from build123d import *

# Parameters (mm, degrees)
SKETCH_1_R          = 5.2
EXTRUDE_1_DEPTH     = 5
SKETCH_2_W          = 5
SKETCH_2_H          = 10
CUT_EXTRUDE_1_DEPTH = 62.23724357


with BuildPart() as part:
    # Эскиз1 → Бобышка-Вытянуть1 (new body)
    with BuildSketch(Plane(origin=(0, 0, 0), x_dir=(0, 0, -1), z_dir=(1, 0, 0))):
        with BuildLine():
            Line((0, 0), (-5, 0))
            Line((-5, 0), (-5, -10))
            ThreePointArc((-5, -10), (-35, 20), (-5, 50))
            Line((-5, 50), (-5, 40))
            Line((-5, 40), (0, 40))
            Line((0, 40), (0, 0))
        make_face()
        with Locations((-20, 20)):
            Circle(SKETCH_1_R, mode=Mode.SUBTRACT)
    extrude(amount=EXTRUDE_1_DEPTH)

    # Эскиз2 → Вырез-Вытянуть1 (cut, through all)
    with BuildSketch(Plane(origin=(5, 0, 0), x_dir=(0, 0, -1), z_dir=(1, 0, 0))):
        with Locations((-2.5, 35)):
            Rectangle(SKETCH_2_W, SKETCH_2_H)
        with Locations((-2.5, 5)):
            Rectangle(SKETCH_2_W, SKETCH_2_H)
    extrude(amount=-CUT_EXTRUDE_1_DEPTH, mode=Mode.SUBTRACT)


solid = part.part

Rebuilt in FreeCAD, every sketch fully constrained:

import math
import FreeCAD as App
import Part
import Sketcher

V = App.Vector
Q = App.Units.Quantity

doc = App.newDocument("Part")
body = doc.addObject("PartDesign::Body", "Body")

sketch1 = body.newObject("Sketcher::SketchObject", "Sketch")
sketch1.AttachmentSupport = (doc.getObject("YZ_Plane"), [""])
sketch1.MapMode = "FlatFace"
sketch1.addGeometry(Part.LineSegment(V(0, 5, 0), V(0, 0, 0)), False)
sketch1.addGeometry(Part.LineSegment(V(0, 0, 0), V(40, 0, 0)), False)
sketch1.addGeometry(Part.LineSegment(V(40, 0, 0), V(40, 5, 0)), False)
sketch1.addGeometry(Part.LineSegment(V(40, 5, 0), V(50, 5, 0)), False)
sketch1.addGeometry(Part.ArcOfCircle(Part.Circle(V(20, 5, 0), V(0, 0, 1), 30), math.radians(0), math.radians(180)), False)
sketch1.addGeometry(Part.LineSegment(V(-10, 5, 0), V(0, 5, 0)), False)
sketch1.addGeometry(Part.Circle(V(20, 20, 0), V(0, 0, 1), 5), False)
sketch1.addConstraint(Sketcher.Constraint("Coincident", 0, 2, 1, 1))
sketch1.addConstraint(Sketcher.Constraint("Coincident", 1, 2, 2, 1))
sketch1.addConstraint(Sketcher.Constraint("Coincident", 2, 2, 3, 1))
sketch1.addConstraint(Sketcher.Constraint("Coincident", 3, 2, 4, 1))
sketch1.addConstraint(Sketcher.Constraint("Coincident", 4, 2, 5, 1))
sketch1.addConstraint(Sketcher.Constraint("Coincident", 5, 2, 0, 1))
sketch1.addConstraint(Sketcher.Constraint("Vertical", 0))
sketch1.addConstraint(Sketcher.Constraint("Horizontal", 1))
sketch1.addConstraint(Sketcher.Constraint("Vertical", 2))
sketch1.addConstraint(Sketcher.Constraint("Horizontal", 3))
sketch1.addConstraint(Sketcher.Constraint("Horizontal", 5))
sketch1.addConstraint(Sketcher.Constraint("Coincident", 0, 2, -1, 1))
sketch1.addConstraint(Sketcher.Constraint("Horizontal", 4, 3, 2, 2))
sketch1.addConstraint(Sketcher.Constraint("Horizontal", 3, 2, 4, 2))
sketch1.addConstraint(Sketcher.Constraint("Vertical", 4, 3, 6, 3))
sketch1.addConstraint(Sketcher.Constraint("Equal", 3, 5))
sketch1.addConstraint(Sketcher.Constraint("Radius", 4, Q("30 mm")))
sketch1.addConstraint(Sketcher.Constraint("Diameter", 6, Q("10.4 mm")))
sketch1.addConstraint(Sketcher.Constraint("DistanceX", 1, 1, 1, 2, Q("40 mm")))
sketch1.addConstraint(Sketcher.Constraint("DistanceY", 0, 2, 0, 1, Q("5 mm")))
sketch1.addConstraint(Sketcher.Constraint("DistanceY", -1, 1, 6, 3, Q("20 mm")))
pad1 = body.newObject("PartDesign::Pad", "Pad")
pad1.Profile = sketch1
pad1.Length = 5

sketch2 = body.newObject("Sketcher::SketchObject", "Sketch001")
sketch2.AttachmentSupport = (doc.getObject("YZ_Plane"), [""])
sketch2.MapMode = "FlatFace"
sketch2.AttachmentOffset = App.Placement(V(0, 0, 5), App.Rotation())
sketch2.addGeometry(Part.LineSegment(V(40, 5, 0), V(30, 5, 0)), False)
sketch2.addGeometry(Part.LineSegment(V(30, 5, 0), V(30, 0, 0)), False)
sketch2.addGeometry(Part.LineSegment(V(30, 0, 0), V(40, 0, 0)), False)
sketch2.addGeometry(Part.LineSegment(V(40, 0, 0), V(40, 5, 0)), False)
sketch2.addGeometry(Part.LineSegment(V(10, 5, 0), V(0, 5, 0)), False)
sketch2.addGeometry(Part.LineSegment(V(0, 5, 0), V(0, 0, 0)), False)
sketch2.addGeometry(Part.LineSegment(V(0, 0, 0), V(10, 0, 0)), False)
sketch2.addGeometry(Part.LineSegment(V(10, 0, 0), V(10, 5, 0)), False)
sketch2.addConstraint(Sketcher.Constraint("Coincident", 0, 2, 1, 1))
sketch2.addConstraint(Sketcher.Constraint("Coincident", 1, 2, 2, 1))
sketch2.addConstraint(Sketcher.Constraint("Coincident", 2, 2, 3, 1))
sketch2.addConstraint(Sketcher.Constraint("Coincident", 3, 2, 0, 1))
sketch2.addConstraint(Sketcher.Constraint("Coincident", 4, 2, 5, 1))
sketch2.addConstraint(Sketcher.Constraint("Coincident", 5, 2, 6, 1))
sketch2.addConstraint(Sketcher.Constraint("Coincident", 6, 2, 7, 1))
sketch2.addConstraint(Sketcher.Constraint("Coincident", 7, 2, 4, 1))
sketch2.addConstraint(Sketcher.Constraint("Horizontal", 0))
sketch2.addConstraint(Sketcher.Constraint("Vertical", 1))
sketch2.addConstraint(Sketcher.Constraint("Horizontal", 2))
sketch2.addConstraint(Sketcher.Constraint("Vertical", 3))
sketch2.addConstraint(Sketcher.Constraint("Horizontal", 4))
sketch2.addConstraint(Sketcher.Constraint("Vertical", 5))
sketch2.addConstraint(Sketcher.Constraint("Horizontal", 6))
sketch2.addConstraint(Sketcher.Constraint("Vertical", 7))
sketch2.addConstraint(Sketcher.Constraint("Coincident", 5, 2, -1, 1))
sketch2.addConstraint(Sketcher.Constraint("PointOnObject", 1, 2, -1))
sketch2.addConstraint(Sketcher.Constraint("Horizontal", 3, 2, 4, 2))
sketch2.addConstraint(Sketcher.Constraint("Equal", 2, 4))
sketch2.addConstraint(Sketcher.Constraint("DistanceX", 0, 2, 0, 1, Q("10 mm")))
sketch2.addConstraint(Sketcher.Constraint("DistanceY", 1, 2, 1, 1, Q("5 mm")))
sketch2.addConstraint(Sketcher.Constraint("DistanceX", -1, 1, 0, 2, Q("30 mm")))
pocket1 = body.newObject("PartDesign::Pocket", "Pocket")
pocket1.Profile = sketch2
pocket1.Type = "ThroughAll"

doc.recompute()
